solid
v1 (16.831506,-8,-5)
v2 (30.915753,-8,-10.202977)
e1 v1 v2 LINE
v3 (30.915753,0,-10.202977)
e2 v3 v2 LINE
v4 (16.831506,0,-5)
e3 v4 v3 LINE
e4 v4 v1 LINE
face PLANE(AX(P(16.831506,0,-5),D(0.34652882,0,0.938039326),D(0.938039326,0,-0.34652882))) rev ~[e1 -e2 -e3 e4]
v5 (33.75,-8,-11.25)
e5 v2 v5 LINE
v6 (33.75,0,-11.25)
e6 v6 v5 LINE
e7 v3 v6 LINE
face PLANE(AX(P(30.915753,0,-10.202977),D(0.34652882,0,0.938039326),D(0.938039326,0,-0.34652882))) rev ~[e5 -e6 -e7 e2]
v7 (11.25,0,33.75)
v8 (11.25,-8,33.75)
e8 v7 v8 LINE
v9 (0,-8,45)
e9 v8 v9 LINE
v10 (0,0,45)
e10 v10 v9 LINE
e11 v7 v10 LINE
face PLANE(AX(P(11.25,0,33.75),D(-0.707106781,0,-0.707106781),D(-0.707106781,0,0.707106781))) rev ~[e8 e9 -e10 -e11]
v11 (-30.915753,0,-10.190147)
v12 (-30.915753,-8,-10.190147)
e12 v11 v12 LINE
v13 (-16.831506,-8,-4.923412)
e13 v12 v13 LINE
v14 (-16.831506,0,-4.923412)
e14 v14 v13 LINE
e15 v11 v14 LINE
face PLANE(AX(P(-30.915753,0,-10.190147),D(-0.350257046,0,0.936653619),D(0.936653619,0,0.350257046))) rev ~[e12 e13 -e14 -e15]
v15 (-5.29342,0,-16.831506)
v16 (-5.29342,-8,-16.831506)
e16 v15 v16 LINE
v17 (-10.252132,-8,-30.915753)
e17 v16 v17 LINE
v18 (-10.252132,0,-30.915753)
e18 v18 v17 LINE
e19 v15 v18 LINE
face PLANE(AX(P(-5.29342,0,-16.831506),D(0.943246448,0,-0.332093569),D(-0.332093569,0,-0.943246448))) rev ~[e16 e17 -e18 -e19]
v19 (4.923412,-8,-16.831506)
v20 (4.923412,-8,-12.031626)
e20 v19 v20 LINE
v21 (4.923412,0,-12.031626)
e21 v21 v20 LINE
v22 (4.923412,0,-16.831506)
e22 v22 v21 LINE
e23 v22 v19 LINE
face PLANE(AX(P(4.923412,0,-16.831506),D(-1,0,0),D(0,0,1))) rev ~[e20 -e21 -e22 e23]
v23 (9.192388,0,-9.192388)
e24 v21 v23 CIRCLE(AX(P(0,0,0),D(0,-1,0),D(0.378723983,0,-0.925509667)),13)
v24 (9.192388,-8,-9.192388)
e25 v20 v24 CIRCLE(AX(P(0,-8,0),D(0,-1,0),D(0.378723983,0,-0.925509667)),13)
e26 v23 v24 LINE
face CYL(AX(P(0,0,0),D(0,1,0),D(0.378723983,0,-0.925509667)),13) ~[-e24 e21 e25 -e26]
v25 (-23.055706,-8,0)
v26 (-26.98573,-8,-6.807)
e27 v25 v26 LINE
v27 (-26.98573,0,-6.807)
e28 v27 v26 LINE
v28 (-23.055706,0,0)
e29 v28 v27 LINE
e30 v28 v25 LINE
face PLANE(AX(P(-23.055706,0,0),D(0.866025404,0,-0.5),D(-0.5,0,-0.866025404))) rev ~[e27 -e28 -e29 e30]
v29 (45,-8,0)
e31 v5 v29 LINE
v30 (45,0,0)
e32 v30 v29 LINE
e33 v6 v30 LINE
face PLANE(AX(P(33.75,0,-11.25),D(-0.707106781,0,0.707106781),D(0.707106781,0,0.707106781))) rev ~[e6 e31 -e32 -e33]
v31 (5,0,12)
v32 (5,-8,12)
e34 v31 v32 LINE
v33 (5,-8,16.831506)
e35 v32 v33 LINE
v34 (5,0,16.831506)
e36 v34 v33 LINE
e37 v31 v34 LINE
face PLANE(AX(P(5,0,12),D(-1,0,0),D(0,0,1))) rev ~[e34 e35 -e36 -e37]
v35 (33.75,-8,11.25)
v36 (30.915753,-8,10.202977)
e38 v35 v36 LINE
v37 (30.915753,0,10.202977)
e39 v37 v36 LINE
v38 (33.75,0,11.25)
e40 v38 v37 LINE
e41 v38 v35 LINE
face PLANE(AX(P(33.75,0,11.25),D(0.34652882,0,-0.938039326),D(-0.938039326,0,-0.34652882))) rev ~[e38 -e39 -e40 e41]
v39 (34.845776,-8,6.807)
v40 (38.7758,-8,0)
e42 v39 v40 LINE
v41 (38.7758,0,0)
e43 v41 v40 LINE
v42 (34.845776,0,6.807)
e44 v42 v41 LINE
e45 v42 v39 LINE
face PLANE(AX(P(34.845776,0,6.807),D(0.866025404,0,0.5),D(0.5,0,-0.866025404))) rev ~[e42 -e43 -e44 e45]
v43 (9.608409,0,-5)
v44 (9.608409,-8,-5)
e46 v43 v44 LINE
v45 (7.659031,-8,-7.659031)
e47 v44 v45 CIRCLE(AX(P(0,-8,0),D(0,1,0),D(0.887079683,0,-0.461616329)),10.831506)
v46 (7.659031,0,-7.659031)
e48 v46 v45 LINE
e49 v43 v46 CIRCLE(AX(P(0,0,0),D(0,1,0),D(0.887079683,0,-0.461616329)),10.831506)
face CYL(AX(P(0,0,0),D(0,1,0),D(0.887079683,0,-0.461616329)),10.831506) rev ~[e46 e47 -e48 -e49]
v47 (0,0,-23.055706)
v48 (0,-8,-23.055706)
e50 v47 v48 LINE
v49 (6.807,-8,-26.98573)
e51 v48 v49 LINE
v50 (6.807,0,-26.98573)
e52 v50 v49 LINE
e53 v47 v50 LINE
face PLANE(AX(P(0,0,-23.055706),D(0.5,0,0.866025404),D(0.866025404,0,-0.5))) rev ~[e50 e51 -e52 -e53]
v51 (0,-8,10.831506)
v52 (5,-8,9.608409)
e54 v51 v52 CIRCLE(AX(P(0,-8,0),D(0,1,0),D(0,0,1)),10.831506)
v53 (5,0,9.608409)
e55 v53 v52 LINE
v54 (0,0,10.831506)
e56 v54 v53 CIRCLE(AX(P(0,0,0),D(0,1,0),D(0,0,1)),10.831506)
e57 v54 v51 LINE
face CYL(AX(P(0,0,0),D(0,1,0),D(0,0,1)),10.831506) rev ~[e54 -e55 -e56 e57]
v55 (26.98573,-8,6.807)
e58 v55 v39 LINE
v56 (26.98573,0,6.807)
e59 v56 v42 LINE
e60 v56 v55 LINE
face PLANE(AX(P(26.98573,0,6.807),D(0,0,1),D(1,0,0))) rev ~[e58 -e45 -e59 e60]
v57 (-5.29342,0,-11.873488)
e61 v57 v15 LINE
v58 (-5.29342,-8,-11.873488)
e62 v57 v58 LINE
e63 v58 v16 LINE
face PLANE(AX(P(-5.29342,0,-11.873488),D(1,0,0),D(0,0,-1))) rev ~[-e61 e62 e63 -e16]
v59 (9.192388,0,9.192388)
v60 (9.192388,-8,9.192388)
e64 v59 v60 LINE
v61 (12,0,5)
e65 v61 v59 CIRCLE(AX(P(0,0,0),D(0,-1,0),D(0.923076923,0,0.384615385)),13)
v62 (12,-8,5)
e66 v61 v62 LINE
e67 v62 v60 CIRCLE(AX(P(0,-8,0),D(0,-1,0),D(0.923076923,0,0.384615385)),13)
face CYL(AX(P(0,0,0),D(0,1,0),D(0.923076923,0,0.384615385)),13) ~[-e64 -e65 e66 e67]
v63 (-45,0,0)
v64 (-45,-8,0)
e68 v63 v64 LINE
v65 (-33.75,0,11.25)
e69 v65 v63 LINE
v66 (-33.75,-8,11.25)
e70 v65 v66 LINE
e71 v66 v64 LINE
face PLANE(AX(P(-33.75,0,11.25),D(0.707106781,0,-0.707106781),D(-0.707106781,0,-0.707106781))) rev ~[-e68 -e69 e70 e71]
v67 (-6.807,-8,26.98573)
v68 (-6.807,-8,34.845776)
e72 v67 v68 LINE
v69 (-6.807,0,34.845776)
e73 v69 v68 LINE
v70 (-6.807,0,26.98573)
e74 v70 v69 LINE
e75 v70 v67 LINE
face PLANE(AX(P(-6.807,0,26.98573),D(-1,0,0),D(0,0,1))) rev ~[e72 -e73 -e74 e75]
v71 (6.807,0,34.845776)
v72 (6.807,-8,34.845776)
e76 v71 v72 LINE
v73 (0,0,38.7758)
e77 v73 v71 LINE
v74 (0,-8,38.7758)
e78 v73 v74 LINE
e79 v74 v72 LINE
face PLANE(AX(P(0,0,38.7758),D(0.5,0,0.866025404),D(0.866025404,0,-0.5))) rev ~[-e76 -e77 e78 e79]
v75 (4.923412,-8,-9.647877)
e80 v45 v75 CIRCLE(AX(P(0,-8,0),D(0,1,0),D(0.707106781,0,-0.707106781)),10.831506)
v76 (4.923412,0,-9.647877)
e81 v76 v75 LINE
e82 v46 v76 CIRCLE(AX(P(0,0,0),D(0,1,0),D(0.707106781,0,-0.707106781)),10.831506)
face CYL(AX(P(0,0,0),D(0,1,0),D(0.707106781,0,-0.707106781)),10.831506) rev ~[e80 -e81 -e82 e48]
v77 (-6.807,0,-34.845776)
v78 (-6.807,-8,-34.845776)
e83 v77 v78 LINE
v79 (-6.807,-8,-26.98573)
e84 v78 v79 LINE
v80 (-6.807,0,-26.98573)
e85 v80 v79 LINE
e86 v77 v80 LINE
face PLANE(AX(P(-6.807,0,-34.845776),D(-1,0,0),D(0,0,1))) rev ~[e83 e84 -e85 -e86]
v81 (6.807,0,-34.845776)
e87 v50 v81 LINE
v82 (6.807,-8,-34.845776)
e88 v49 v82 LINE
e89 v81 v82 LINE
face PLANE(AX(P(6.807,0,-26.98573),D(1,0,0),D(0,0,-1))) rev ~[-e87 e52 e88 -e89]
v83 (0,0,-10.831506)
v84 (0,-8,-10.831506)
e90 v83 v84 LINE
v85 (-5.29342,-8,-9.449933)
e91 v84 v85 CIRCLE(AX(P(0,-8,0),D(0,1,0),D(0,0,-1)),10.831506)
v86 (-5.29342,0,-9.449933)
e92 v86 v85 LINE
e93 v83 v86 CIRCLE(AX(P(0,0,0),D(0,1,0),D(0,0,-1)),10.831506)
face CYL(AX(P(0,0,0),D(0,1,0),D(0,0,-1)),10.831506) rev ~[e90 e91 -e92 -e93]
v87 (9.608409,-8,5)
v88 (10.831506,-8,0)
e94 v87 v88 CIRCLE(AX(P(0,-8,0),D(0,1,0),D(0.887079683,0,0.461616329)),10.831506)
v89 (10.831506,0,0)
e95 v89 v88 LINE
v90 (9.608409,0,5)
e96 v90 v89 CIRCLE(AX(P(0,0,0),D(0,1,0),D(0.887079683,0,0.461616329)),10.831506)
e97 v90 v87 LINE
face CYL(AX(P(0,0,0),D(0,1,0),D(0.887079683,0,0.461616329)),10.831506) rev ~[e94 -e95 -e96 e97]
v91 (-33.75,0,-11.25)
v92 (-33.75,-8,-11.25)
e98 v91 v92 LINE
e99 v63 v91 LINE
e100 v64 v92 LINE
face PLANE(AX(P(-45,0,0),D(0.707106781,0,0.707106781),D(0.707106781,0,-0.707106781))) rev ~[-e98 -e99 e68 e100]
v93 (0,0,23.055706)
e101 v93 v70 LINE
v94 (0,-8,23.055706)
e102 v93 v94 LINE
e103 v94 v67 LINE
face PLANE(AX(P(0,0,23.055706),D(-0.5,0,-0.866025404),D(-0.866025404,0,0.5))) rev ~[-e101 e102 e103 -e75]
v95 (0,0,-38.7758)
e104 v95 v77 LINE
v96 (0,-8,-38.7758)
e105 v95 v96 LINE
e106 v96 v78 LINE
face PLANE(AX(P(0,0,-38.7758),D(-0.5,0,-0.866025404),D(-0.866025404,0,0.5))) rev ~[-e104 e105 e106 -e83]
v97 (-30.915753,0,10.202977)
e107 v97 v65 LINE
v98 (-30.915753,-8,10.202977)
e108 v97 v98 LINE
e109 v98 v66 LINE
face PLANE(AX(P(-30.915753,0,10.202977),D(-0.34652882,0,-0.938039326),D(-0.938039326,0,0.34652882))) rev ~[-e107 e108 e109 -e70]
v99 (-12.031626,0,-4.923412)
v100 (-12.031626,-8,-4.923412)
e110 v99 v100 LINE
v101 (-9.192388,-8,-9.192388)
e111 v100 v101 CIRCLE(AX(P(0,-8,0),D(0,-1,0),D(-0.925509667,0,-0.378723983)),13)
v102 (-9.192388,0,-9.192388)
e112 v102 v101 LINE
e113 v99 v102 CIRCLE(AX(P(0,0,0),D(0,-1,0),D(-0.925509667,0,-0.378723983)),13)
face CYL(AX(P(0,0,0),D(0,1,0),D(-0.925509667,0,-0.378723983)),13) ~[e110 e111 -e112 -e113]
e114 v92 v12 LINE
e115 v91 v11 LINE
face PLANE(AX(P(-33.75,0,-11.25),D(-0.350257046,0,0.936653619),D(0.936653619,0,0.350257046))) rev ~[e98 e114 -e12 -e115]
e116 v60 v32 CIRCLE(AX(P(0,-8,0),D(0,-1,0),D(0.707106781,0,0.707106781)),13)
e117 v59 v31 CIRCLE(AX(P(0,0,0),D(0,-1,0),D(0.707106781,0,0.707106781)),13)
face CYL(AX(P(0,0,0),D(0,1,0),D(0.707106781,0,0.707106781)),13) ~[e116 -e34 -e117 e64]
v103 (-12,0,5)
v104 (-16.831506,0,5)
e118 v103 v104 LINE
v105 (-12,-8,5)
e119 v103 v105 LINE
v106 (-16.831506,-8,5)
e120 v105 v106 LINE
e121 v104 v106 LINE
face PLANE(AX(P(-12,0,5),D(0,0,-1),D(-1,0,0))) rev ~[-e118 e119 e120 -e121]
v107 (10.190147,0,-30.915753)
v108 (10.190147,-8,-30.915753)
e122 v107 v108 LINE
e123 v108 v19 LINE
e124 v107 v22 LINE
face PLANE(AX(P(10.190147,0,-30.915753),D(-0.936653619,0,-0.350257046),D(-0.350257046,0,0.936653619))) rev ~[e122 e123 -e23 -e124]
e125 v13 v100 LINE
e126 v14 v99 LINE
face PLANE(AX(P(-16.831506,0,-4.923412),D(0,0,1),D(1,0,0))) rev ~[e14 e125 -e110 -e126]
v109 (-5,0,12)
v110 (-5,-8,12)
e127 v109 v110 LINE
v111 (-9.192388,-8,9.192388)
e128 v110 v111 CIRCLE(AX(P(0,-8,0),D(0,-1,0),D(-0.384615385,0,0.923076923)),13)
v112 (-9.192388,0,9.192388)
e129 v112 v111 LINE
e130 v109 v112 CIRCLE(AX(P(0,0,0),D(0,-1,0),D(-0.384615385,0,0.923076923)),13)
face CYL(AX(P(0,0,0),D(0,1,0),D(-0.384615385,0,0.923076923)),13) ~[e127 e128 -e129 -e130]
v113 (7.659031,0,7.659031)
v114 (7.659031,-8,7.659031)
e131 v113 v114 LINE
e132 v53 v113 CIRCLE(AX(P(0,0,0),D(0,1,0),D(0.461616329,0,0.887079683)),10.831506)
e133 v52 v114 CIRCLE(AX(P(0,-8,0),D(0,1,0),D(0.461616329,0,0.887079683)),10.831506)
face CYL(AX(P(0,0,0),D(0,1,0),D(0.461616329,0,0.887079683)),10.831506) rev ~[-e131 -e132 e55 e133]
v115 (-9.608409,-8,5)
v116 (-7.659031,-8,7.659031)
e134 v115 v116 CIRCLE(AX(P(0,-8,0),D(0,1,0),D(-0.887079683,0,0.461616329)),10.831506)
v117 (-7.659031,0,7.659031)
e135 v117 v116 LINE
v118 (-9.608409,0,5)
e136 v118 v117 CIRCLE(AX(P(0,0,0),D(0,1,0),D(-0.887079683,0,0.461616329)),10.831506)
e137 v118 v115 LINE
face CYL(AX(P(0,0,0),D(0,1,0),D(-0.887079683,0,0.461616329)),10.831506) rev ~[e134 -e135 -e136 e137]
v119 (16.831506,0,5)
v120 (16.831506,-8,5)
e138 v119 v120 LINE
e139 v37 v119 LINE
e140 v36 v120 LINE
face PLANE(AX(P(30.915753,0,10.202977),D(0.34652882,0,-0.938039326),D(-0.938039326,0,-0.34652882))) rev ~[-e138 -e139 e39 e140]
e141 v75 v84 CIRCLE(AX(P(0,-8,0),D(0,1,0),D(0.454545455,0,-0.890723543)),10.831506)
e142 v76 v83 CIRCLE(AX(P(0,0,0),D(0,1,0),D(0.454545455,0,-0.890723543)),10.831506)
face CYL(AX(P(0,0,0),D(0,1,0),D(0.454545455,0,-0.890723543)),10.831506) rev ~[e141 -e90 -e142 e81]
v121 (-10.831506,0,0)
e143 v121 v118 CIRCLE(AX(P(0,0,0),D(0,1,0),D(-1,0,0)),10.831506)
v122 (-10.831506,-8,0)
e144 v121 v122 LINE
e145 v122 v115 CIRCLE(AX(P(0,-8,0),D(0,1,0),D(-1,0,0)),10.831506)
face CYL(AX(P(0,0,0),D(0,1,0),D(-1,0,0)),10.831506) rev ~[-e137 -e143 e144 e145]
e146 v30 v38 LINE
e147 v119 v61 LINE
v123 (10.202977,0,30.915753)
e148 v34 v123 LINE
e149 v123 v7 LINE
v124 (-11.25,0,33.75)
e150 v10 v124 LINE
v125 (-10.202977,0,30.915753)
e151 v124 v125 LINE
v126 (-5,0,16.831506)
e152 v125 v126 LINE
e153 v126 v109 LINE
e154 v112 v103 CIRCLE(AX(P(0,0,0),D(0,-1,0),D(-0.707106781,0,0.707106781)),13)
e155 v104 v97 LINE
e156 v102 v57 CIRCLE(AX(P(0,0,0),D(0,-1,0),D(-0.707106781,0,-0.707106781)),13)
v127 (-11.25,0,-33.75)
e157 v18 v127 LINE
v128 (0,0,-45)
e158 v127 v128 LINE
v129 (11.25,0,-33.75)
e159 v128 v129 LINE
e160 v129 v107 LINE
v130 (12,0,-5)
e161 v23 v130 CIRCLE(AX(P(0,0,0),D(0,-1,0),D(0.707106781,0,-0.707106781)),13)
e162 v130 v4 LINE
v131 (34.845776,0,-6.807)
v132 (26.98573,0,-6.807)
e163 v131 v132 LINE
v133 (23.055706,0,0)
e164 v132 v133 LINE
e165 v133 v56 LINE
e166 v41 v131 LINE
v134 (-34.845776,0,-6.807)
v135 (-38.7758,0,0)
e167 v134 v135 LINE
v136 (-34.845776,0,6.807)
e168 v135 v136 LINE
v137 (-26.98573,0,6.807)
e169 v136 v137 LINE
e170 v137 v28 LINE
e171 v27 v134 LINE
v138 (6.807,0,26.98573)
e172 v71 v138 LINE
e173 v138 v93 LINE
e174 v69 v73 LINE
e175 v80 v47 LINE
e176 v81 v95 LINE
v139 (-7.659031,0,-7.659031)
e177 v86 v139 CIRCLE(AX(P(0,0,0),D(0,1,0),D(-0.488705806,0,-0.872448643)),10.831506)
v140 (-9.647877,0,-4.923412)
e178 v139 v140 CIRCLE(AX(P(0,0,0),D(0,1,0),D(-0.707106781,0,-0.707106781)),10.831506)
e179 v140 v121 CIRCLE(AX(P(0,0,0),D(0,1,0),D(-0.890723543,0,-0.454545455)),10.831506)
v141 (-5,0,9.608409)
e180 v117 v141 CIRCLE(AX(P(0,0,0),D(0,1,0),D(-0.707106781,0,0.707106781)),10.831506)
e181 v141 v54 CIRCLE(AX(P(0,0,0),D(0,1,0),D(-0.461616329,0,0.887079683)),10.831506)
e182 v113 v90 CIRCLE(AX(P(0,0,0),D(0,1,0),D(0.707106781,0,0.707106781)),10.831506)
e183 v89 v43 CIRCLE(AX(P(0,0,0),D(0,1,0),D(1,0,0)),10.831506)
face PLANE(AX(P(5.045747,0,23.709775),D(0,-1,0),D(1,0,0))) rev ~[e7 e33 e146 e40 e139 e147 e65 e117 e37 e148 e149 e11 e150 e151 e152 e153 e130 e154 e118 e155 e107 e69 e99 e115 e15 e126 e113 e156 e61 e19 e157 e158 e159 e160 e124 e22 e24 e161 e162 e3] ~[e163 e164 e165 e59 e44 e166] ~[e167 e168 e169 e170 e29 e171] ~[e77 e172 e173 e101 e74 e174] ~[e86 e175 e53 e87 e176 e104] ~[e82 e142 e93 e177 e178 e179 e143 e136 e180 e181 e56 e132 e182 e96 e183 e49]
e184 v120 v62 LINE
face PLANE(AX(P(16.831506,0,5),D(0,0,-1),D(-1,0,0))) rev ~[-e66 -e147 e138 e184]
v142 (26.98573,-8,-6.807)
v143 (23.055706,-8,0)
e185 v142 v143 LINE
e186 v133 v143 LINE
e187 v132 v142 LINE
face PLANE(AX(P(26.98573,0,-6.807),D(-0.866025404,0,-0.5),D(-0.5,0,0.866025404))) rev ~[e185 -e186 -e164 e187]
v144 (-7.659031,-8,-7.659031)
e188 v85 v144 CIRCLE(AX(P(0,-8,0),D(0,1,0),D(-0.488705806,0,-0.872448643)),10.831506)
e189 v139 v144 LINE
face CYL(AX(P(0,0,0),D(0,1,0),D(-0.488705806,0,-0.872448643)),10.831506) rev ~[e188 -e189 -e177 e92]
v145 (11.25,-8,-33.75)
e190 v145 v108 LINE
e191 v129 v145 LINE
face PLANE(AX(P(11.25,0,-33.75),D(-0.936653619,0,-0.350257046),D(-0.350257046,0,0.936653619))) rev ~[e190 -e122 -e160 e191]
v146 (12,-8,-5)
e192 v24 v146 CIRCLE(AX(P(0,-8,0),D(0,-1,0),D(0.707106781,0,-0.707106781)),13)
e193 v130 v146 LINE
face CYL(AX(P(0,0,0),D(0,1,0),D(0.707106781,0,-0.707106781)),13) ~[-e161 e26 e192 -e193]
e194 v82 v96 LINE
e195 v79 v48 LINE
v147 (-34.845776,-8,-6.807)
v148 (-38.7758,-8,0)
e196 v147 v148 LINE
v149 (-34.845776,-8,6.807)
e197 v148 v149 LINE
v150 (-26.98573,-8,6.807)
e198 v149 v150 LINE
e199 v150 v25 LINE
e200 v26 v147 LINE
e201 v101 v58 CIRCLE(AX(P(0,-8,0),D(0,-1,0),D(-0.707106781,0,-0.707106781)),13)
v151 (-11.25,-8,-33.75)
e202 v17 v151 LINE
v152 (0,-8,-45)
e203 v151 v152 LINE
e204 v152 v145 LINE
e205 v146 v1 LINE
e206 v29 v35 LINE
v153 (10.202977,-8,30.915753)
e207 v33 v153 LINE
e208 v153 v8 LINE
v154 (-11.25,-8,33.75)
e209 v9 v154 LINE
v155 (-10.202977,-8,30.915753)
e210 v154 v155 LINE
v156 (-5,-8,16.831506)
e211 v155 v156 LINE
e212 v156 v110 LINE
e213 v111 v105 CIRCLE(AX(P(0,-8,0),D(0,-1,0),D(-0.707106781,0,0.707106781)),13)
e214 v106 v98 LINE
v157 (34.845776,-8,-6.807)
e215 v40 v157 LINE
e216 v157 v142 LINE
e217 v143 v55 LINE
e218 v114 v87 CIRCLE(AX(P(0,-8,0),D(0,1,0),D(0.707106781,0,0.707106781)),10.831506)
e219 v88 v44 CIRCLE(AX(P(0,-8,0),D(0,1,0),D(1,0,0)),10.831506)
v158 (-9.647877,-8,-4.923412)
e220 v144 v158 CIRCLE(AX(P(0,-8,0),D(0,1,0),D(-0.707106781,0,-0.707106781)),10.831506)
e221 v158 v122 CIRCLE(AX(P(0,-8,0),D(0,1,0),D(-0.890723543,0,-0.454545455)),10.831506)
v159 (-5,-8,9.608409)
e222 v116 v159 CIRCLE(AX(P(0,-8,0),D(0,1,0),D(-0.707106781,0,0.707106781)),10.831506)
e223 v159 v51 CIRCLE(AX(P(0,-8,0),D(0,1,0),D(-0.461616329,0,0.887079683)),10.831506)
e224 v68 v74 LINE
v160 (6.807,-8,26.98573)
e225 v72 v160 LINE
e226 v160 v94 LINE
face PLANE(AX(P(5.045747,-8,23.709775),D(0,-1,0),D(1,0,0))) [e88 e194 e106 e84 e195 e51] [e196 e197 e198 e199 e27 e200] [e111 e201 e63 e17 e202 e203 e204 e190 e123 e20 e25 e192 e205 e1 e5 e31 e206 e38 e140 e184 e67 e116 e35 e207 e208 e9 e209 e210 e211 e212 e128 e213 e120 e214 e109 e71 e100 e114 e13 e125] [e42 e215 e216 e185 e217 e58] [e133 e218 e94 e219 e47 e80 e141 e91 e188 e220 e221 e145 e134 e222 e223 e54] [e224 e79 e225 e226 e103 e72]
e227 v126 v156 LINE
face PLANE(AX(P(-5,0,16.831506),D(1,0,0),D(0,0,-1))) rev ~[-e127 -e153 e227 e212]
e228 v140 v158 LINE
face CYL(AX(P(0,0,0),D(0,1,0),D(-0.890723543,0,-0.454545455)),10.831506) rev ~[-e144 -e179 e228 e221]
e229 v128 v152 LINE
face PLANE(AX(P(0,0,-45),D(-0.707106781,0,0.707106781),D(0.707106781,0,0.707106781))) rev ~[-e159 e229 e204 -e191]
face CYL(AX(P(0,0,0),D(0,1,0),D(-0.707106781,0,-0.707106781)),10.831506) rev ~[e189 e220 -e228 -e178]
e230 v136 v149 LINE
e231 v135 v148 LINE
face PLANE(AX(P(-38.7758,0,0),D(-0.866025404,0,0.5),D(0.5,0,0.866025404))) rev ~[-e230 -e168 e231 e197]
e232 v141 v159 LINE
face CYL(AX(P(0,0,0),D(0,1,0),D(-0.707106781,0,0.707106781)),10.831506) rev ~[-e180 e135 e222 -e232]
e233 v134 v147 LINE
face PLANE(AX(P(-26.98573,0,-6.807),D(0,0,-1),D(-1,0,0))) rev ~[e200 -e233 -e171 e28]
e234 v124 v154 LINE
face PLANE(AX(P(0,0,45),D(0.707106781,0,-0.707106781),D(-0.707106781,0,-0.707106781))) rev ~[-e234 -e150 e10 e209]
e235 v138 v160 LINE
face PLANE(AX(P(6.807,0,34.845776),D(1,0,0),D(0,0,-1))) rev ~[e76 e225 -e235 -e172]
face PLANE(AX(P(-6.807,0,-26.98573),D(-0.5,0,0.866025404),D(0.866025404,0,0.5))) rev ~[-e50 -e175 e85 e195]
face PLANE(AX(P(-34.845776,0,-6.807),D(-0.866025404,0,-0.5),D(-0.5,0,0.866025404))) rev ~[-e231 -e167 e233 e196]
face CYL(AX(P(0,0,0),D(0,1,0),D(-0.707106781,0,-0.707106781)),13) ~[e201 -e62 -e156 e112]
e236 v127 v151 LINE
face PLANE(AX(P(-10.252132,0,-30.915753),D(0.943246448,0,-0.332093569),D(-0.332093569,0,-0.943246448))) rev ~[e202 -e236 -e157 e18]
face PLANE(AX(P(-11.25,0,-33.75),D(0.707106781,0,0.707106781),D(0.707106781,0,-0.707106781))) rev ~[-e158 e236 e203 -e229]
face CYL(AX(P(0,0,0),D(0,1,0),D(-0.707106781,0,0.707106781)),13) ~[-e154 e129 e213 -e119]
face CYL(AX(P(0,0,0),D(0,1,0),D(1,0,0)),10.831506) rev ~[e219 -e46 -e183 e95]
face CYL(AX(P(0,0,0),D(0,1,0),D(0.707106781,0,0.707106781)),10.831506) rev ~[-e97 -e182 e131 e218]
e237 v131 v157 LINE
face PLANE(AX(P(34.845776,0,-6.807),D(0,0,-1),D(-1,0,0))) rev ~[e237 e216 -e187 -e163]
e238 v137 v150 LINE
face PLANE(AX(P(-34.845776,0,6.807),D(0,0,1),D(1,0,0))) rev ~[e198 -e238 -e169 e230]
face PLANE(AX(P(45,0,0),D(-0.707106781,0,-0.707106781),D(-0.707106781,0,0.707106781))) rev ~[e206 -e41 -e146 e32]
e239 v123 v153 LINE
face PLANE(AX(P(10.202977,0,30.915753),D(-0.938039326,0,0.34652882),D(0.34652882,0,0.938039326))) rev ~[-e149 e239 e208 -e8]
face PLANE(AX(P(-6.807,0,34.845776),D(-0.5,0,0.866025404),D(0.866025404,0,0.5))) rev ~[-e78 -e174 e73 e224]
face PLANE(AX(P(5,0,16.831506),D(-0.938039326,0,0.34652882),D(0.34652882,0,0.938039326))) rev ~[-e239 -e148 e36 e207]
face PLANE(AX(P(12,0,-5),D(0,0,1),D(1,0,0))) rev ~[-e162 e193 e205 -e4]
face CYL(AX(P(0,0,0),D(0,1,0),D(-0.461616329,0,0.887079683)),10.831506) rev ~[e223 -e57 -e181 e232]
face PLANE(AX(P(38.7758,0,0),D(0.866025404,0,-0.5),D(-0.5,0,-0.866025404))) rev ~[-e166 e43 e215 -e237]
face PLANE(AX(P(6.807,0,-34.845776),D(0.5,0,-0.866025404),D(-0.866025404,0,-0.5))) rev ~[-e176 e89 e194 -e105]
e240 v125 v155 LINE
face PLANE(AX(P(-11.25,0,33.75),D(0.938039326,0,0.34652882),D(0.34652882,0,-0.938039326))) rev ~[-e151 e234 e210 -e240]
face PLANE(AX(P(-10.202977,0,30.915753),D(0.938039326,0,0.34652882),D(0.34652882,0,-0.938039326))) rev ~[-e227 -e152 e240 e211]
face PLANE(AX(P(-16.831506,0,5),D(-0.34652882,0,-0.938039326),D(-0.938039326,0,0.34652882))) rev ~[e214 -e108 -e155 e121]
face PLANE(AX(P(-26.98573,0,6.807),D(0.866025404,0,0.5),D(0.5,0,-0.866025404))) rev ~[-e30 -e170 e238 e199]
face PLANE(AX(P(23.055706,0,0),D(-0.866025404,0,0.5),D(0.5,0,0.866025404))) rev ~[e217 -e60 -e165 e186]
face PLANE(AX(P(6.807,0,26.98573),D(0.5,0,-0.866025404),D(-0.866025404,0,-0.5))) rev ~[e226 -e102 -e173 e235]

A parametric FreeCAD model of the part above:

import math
import FreeCAD as App
import Part
import Sketcher

V = App.Vector
Q = App.Units.Quantity

doc = App.newDocument("Part")
params = doc.addObject("Spreadsheet::Sheet", "Params")
for row, (alias, value) in enumerate([
    ("sketch1_radius", "13 mm"),
    ("pad1_length", "8 mm"),
], start=1):
    params.set(f"A{row}", alias)
    params.set(f"B{row}", "=" + value)
    params.setAlias(f"B{row}", alias)

body = doc.addObject("PartDesign::Body", "Body")

# Sketch on XZ plane
sketch1 = doc.addObject("Sketcher::SketchObject", "Sketch")
body.addObject(sketch1)
sketch1.AttachmentSupport = (doc.XZ_Plane, [""])
sketch1.MapMode = "FlatFace"
sketch1.addGeometry([
    Part.LineSegment(V(5, 16.8, 0), V(10.2, 30.9, 0)),  # 0
    Part.LineSegment(V(10.2, 30.9, 0), V(11.2, 33.8, 0)),  # 1
    Part.LineSegment(V(11.2, 33.8, 0), V(0, 45, 0)),  # 2
    Part.LineSegment(V(0, 45, 0), V(-11.2, 33.8, 0)),  # 3
    Part.LineSegment(V(-11.2, 33.8, 0), V(-10.2, 30.9, 0)),  # 4
    Part.LineSegment(V(-10.2, 30.9, 0), V(-5, 16.8, 0)),  # 5
    Part.LineSegment(V(-5, 16.8, 0), V(-5, 12, 0)),  # 6
    Part.ArcOfCircle(Part.Circle(V(0, 0, 0), V(0, 0, 1), 13), math.radians(113), math.radians(135)),  # 7
    Part.ArcOfCircle(Part.Circle(V(0, 0, 0), V(0, 0, 1), 13), math.radians(135), math.radians(157)),  # 8
    Part.LineSegment(V(-12, 5, 0), V(-16.8, 5, 0)),  # 9
    Part.LineSegment(V(-16.8, 5, 0), V(-30.9, 10.2, 0)),  # 10
    Part.LineSegment(V(-30.9, 10.2, 0), V(-33.8, 11.2, 0)),  # 11
    Part.LineSegment(V(-33.8, 11.2, 0), V(-45, 0, 0)),  # 12
    Part.LineSegment(V(-45, 0, 0), V(-33.8, -11.2, 0)),  # 13
    Part.LineSegment(V(-33.8, -11.2, 0), V(-30.9, -10.2, 0)),  # 14
    Part.LineSegment(V(-30.9, -10.2, 0), V(-16.8, -4.9, 0)),  # 15
    Part.LineSegment(V(-16.8, -4.9, 0), V(-12, -4.9, 0)),  # 16
    Part.ArcOfCircle(Part.Circle(V(0, 0, 0), V(0, 0, 1), 13), math.radians(-158), math.radians(-135)),  # 17
    Part.ArcOfCircle(Part.Circle(V(0, 0, 0), V(0, 0, 1), 13), math.radians(-135), math.radians(-114)),  # 18
    Part.LineSegment(V(-5.3, -11.9, 0), V(-5.3, -16.8, 0)),  # 19
    Part.LineSegment(V(-5.3, -16.8, 0), V(-10.3, -30.9, 0)),  # 20
    Part.LineSegment(V(-10.3, -30.9, 0), V(-11.2, -33.8, 0)),  # 21
    Part.LineSegment(V(-11.2, -33.8, 0), V(0, -45, 0)),  # 22
    Part.LineSegment(V(0, -45, 0), V(11.2, -33.8, 0)),  # 23
    Part.LineSegment(V(11.2, -33.8, 0), V(10.2, -30.9, 0)),  # 24
    Part.LineSegment(V(10.2, -30.9, 0), V(4.9, -16.8, 0)),  # 25
    Part.LineSegment(V(4.9, -16.8, 0), V(4.9, -12, 0)),  # 26
    Part.ArcOfCircle(Part.Circle(V(0, 0, 0), V(0, 0, 1), 13), math.radians(-68), math.radians(-45)),  # 27
    Part.ArcOfCircle(Part.Circle(V(0, 0, 0), V(0, 0, 1), 13), math.radians(-45), math.radians(-23)),  # 28
    Part.LineSegment(V(12, -5, 0), V(16.8, -5, 0)),  # 29
    Part.LineSegment(V(16.8, -5, 0), V(30.9, -10.2, 0)),  # 30
    Part.LineSegment(V(30.9, -10.2, 0), V(33.8, -11.2, 0)),  # 31
    Part.LineSegment(V(33.8, -11.2, 0), V(45, 0, 0)),  # 32
    Part.LineSegment(V(45, 0, 0), V(33.8, 11.2, 0)),  # 33
    Part.LineSegment(V(33.8, 11.2, 0), V(30.9, 10.2, 0)),  # 34
    Part.LineSegment(V(30.9, 10.2, 0), V(16.8, 5, 0)),  # 35
    Part.LineSegment(V(16.8, 5, 0), V(12, 5, 0)),  # 36
    Part.ArcOfCircle(Part.Circle(V(0, 0, 0), V(0, 0, 1), 13), math.radians(23), math.radians(45)),  # 37
    Part.ArcOfCircle(Part.Circle(V(0, 0, 0), V(0, 0, 1), 13), math.radians(45), math.radians(67)),  # 38
    Part.LineSegment(V(5, 12, 0), V(5, 16.8, 0)),  # 39
    Part.ArcOfCircle(Part.Circle(V(0, 0, 0), V(0, 0, 1), 10.8), math.radians(-62.96), math.radians(-45)),  # 40
    Part.ArcOfCircle(Part.Circle(V(0, 0, 0), V(0, 0, 1), 10.8), math.radians(-90), math.radians(-63)),  # 41
    Part.ArcOfCircle(Part.Circle(V(0, 0, 0), V(0, 0, 1), 10.8), math.radians(-119), math.radians(-90)),  # 42
    Part.ArcOfCircle(Part.Circle(V(0, 0, 0), V(0, 0, 1), 10.8), math.radians(-135), math.radians(-119.26)),  # 43
    Part.ArcOfCircle(Part.Circle(V(0, 0, 0), V(0, 0, 1), 10.8), math.radians(-152.96), math.radians(-135)),  # 44
    Part.ArcOfCircle(Part.Circle(V(0, 0, 0), V(0, 0, 1), 10.8), math.radians(180), math.radians(207)),  # 45
    Part.ArcOfCircle(Part.Circle(V(0, 0, 0), V(0, 0, 1), 10.8), math.radians(153), math.radians(180)),  # 46
    Part.ArcOfCircle(Part.Circle(V(0, 0, 0), V(0, 0, 1), 10.8), math.radians(135), math.radians(152.51)),  # 47
    Part.ArcOfCircle(Part.Circle(V(0, 0, 0), V(0, 0, 1), 10.8), math.radians(117.49), math.radians(135)),  # 48
    Part.ArcOfCircle(Part.Circle(V(0, 0, 0), V(0, 0, 1), 10.8), math.radians(90), math.radians(117)),  # 49
    Part.ArcOfCircle(Part.Circle(V(0, 0, 0), V(0, 0, 1), 10.8), math.radians(63), math.radians(90)),  # 50
    Part.ArcOfCircle(Part.Circle(V(0, 0, 0), V(0, 0, 1), 10.8), math.radians(45), math.radians(62.51)),  # 51
    Part.ArcOfCircle(Part.Circle(V(0, 0, 0), V(0, 0, 1), 10.8), math.radians(27.49), math.radians(45)),  # 52
    Part.ArcOfCircle(Part.Circle(V(0, 0, 0), V(0, 0, 1), 10.8), math.radians(0), math.radians(27)),  # 53
    Part.ArcOfCircle(Part.Circle(V(0, 0, 0), V(0, 0, 1), 10.8), math.radians(-27), math.radians(0)),  # 54
    Part.ArcOfCircle(Part.Circle(V(0, 0, 0), V(0, 0, 1), 10.8), math.radians(-45), math.radians(-27.49)),  # 55
    Part.LineSegment(V(0, 38.8, 0), V(6.8, 34.8, 0)),  # 56
    Part.LineSegment(V(6.8, 34.8, 0), V(6.8, 27, 0)),  # 57
    Part.LineSegment(V(6.8, 27, 0), V(0, 23.1, 0)),  # 58
    Part.LineSegment(V(0, 23.1, 0), V(-6.8, 27, 0)),  # 59
    Part.LineSegment(V(-6.8, 27, 0), V(-6.8, 34.8, 0)),  # 60
    Part.LineSegment(V(-6.8, 34.8, 0), V(0, 38.8, 0)),  # 61
    Part.LineSegment(V(-27, -6.8, 0), V(-34.8, -6.8, 0)),  # 62
    Part.LineSegment(V(-34.8, -6.8, 0), V(-38.8, 0, 0)),  # 63
    Part.LineSegment(V(-38.8, 0, 0), V(-34.8, 6.8, 0)),  # 64
    Part.LineSegment(V(-34.8, 6.8, 0), V(-27, 6.8, 0)),  # 65
    Part.LineSegment(V(-27, 6.8, 0), V(-23.1, 0, 0)),  # 66
    Part.LineSegment(V(-23.1, 0, 0), V(-27, -6.8, 0)),  # 67
    Part.LineSegment(V(-6.8, -27, 0), V(0, -23.1, 0)),  # 68
    Part.LineSegment(V(0, -23.1, 0), V(6.8, -27, 0)),  # 69
    Part.LineSegment(V(6.8, -27, 0), V(6.8, -34.8, 0)),  # 70
    Part.LineSegment(V(6.8, -34.8, 0), V(0, -38.8, 0)),  # 71
    Part.LineSegment(V(0, -38.8, 0), V(-6.8, -34.8, 0)),  # 72
    Part.LineSegment(V(-6.8, -34.8, 0), V(-6.8, -27, 0)),  # 73
    Part.LineSegment(V(34.8, 6.8, 0), V(38.8, 0, 0)),  # 74
    Part.LineSegment(V(38.8, 0, 0), V(34.8, -6.8, 0)),  # 75
    Part.LineSegment(V(34.8, -6.8, 0), V(27, -6.8, 0)),  # 76
    Part.LineSegment(V(27, -6.8, 0), V(23.1, 0, 0)),  # 77
    Part.LineSegment(V(23.1, 0, 0), V(27, 6.8, 0)),  # 78
    Part.LineSegment(V(27, 6.8, 0), V(34.8, 6.8, 0)),  # 79
], False)
sketch1.addConstraint([
    Sketcher.Constraint("Coincident", 0, 2, 1, 1),
    Sketcher.Constraint("Coincident", 1, 2, 2, 1),
    Sketcher.Constraint("Coincident", 2, 2, 3, 1),
    Sketcher.Constraint("Coincident", 3, 2, 4, 1),
    Sketcher.Constraint("Coincident", 4, 2, 5, 1),
    Sketcher.Constraint("Coincident", 5, 2, 6, 1),
    Sketcher.Constraint("Coincident", 6, 2, 7, 1),
    Sketcher.Constraint("Tangent", 7, 2, 8, 1),
    Sketcher.Constraint("Coincident", 8, 2, 9, 1),
    Sketcher.Constraint("Coincident", 9, 2, 10, 1),
    Sketcher.Constraint("Coincident", 10, 2, 11, 1),
    Sketcher.Constraint("Coincident", 11, 2, 12, 1),
    Sketcher.Constraint("Coincident", 12, 2, 13, 1),
    Sketcher.Constraint("Coincident", 13, 2, 14, 1),
    Sketcher.Constraint("Coincident", 14, 2, 15, 1),
    Sketcher.Constraint("Coincident", 15, 2, 16, 1),
    Sketcher.Constraint("Coincident", 16, 2, 17, 1),
    Sketcher.Constraint("Tangent", 17, 2, 18, 1),
    Sketcher.Constraint("Coincident", 18, 2, 19, 1),
    Sketcher.Constraint("Coincident", 19, 2, 20, 1),
    Sketcher.Constraint("Coincident", 20, 2, 21, 1),
    Sketcher.Constraint("Coincident", 21, 2, 22, 1),
    Sketcher.Constraint("Coincident", 22, 2, 23, 1),
    Sketcher.Constraint("Coincident", 23, 2, 24, 1),
    Sketcher.Constraint("Coincident", 24, 2, 25, 1),
    Sketcher.Constraint("Coincident", 25, 2, 26, 1),
    Sketcher.Constraint("Coincident", 26, 2, 27, 1),
    Sketcher.Constraint("Tangent", 27, 2, 28, 1),
    Sketcher.Constraint("Coincident", 28, 2, 29, 1),
    Sketcher.Constraint("Coincident", 29, 2, 30, 1),
    Sketcher.Constraint("Coincident", 30, 2, 31, 1),
    Sketcher.Constraint("Coincident", 31, 2, 32, 1),
    Sketcher.Constraint("Coincident", 32, 2, 33, 1),
    Sketcher.Constraint("Coincident", 33, 2, 34, 1),
    Sketcher.Constraint("Coincident", 34, 2, 35, 1),
    Sketcher.Constraint("Coincident", 35, 2, 36, 1),
    Sketcher.Constraint("Coincident", 36, 2, 37, 1),
    Sketcher.Constraint("Tangent", 37, 2, 38, 1),
    Sketcher.Constraint("Coincident", 38, 2, 39, 1),
    Sketcher.Constraint("Coincident", 39, 2, 0, 1),
    Sketcher.Constraint("Tangent", 40, 1, 41, 2),
    Sketcher.Constraint("Tangent", 41, 1, 42, 2),
    Sketcher.Constraint("Tangent", 42, 1, 43, 2),
    Sketcher.Constraint("Tangent", 43, 1, 44, 2),
    Sketcher.Constraint("Tangent", 44, 1, 45, 2),
    Sketcher.Constraint("Tangent", 45, 1, 46, 2),
    Sketcher.Constraint("Tangent", 46, 1, 47, 2),
    Sketcher.Constraint("Tangent", 47, 1, 48, 2),
    Sketcher.Constraint("Tangent", 48, 1, 49, 2),
    Sketcher.Constraint("Tangent", 49, 1, 50, 2),
    Sketcher.Constraint("Tangent", 50, 1, 51, 2),
    Sketcher.Constraint("Tangent", 51, 1, 52, 2),
    Sketcher.Constraint("Tangent", 52, 1, 53, 2),
    Sketcher.Constraint("Tangent", 53, 1, 54, 2),
    Sketcher.Constraint("Tangent", 54, 1, 55, 2),
    Sketcher.Constraint("Tangent", 55, 1, 40, 2),
    Sketcher.Constraint("Coincident", 56, 2, 57, 1),
    Sketcher.Constraint("Coincident", 57, 2, 58, 1),
    Sketcher.Constraint("Coincident", 58, 2, 59, 1),
    Sketcher.Constraint("Coincident", 59, 2, 60, 1),
    Sketcher.Constraint("Coincident", 60, 2, 61, 1),
    Sketcher.Constraint("Coincident", 61, 2, 56, 1),
    Sketcher.Constraint("Coincident", 62, 2, 63, 1),
    Sketcher.Constraint("Coincident", 63, 2, 64, 1),
    Sketcher.Constraint("Coincident", 64, 2, 65, 1),
    Sketcher.Constraint("Coincident", 65, 2, 66, 1),
    Sketcher.Constraint("Coincident", 66, 2, 67, 1),
    Sketcher.Constraint("Coincident", 67, 2, 62, 1),
    Sketcher.Constraint("Coincident", 68, 2, 69, 1),
    Sketcher.Constraint("Coincident", 69, 2, 70, 1),
    Sketcher.Constraint("Coincident", 70, 2, 71, 1),
    Sketcher.Constraint("Coincident", 71, 2, 72, 1),
    Sketcher.Constraint("Coincident", 72, 2, 73, 1),
    Sketcher.Constraint("Coincident", 73, 2, 68, 1),
    Sketcher.Constraint("Coincident", 74, 2, 75, 1),
    Sketcher.Constraint("Coincident", 75, 2, 76, 1),
    Sketcher.Constraint("Coincident", 76, 2, 77, 1),
    Sketcher.Constraint("Coincident", 77, 2, 78, 1),
    Sketcher.Constraint("Coincident", 78, 2, 79, 1),
    Sketcher.Constraint("Coincident", 79, 2, 74, 1),
    Sketcher.Constraint("Vertical", 6),
    Sketcher.Constraint("Horizontal", 9),
    Sketcher.Constraint("Horizontal", 16),
    Sketcher.Constraint("Vertical", 19),
    Sketcher.Constraint("Vertical", 26),
    Sketcher.Constraint("Horizontal", 29),
    Sketcher.Constraint("Horizontal", 36),
    Sketcher.Constraint("Vertical", 39),
    Sketcher.Constraint("Vertical", 57),
    Sketcher.Constraint("Vertical", 60),
    Sketcher.Constraint("Horizontal", 62),
    Sketcher.Constraint("Horizontal", 65),
    Sketcher.Constraint("Vertical", 70),
    Sketcher.Constraint("Vertical", 73),
    Sketcher.Constraint("Horizontal", 76),
    Sketcher.Constraint("Horizontal", 79),
    Sketcher.Constraint("Coincident", 7, 3, -1, 1),
    Sketcher.Constraint("Coincident", 17, 3, -1, 1),
    Sketcher.Constraint("Coincident", 27, 3, -1, 1),
    Sketcher.Constraint("Coincident", 37, 3, -1, 1),
    Sketcher.Constraint("Coincident", 40, 3, -1, 1),
    Sketcher.Constraint("Coincident", 42, 3, -1, 1),
    Sketcher.Constraint("Coincident", 44, 3, -1, 1),
    Sketcher.Constraint("Coincident", 46, 3, -1, 1),
    Sketcher.Constraint("Coincident", 48, 3, -1, 1),
    Sketcher.Constraint("Coincident", 50, 3, -1, 1),
    Sketcher.Constraint("Coincident", 52, 3, -1, 1),
    Sketcher.Constraint("Equal", 7, 8),
    Sketcher.Constraint("Equal", 8, 17),
    Sketcher.Constraint("Equal", 17, 18),
    Sketcher.Constraint("Equal", 18, 27),
    Sketcher.Constraint("Equal", 27, 28),
    Sketcher.Constraint("Equal", 28, 37),
    Sketcher.Constraint("Equal", 37, 38),
    Sketcher.Constraint("Equal", 52, 53),
    Sketcher.Constraint("Symmetric", 1, 2, 21, 2, -1, 1),
    Sketcher.Constraint("Symmetric", 2, 2, 22, 2, -1, 1),
    Sketcher.Constraint("Symmetric", 3, 2, 23, 2, -1, 1),
    Sketcher.Constraint("Symmetric", 9, 2, 29, 2, -1, 1),
    Sketcher.Constraint("Symmetric", 10, 2, 30, 2, -1, 1),
    Sketcher.Constraint("Symmetric", 11, 2, 31, 2, -1, 1),
    Sketcher.Constraint("Symmetric", 12, 2, 32, 2, -1, 1),
    Sketcher.Constraint("Symmetric", 13, 2, 33, 2, -1, 1),
    Sketcher.Constraint("Symmetric", 58, 2, 68, 2, -1, 1),
    Sketcher.Constraint("Symmetric", 59, 2, 69, 2, -1, 1),
    Sketcher.Constraint("Symmetric", 61, 2, 71, 2, -1, 1),
    Sketcher.Constraint("Symmetric", 56, 2, 72, 2, -1, 1),
    Sketcher.Constraint("Symmetric", 63, 2, 74, 2, -1, 1),
    Sketcher.Constraint("Symmetric", 64, 2, 75, 2, -1, 1),
    Sketcher.Constraint("Symmetric", 66, 2, 77, 2, -1, 1),
    Sketcher.Constraint("Symmetric", 67, 2, 78, 2, -1, 1),
    Sketcher.Constraint("Symmetric", 1, 2, 3, 2, -2),
    Sketcher.Constraint("Symmetric", 0, 2, 4, 2, -2),
    Sketcher.Constraint("Symmetric", 13, 2, 31, 2, -2),
    Sketcher.Constraint("Symmetric", 10, 2, 34, 2, -2),
    Sketcher.Constraint("Symmetric", 9, 2, 35, 2, -2),
    Sketcher.Constraint("Symmetric", 5, 2, 39, 2, -2),
    Sketcher.Constraint("Symmetric", 57, 2, 59, 2, -2),
    Sketcher.Constraint("Symmetric", 62, 2, 75, 2, -2),
    Sketcher.Constraint("PointOnObject", 2, 2, -2),
    Sketcher.Constraint("PointOnObject", 12, 2, -1),
    Sketcher.Constraint("PointOnObject", 41, 1, -2),
    Sketcher.Constraint("PointOnObject", 45, 1, -1),
    Sketcher.Constraint("PointOnObject", 49, 1, -2),
    Sketcher.Constraint("PointOnObject", 53, 1, -1),
    Sketcher.Constraint("PointOnObject", 58, 2, -2),
    Sketcher.Constraint("PointOnObject", 61, 2, -2),
    Sketcher.Constraint("PointOnObject", 63, 2, -1),
    Sketcher.Constraint("PointOnObject", 66, 2, -1),
    Sketcher.Constraint("Parallel", 0, 1),
    Sketcher.Constraint("Perpendicular", 2, 3),
    Sketcher.Constraint("Perpendicular", 1, 10),
    Sketcher.Constraint("Parallel", 10, 11),
    Sketcher.Constraint("Parallel", 3, 12),
    Sketcher.Constraint("Parallel", 14, 15),
    Sketcher.Constraint("Parallel", 20, 21),
    Sketcher.Constraint("Perpendicular", 15, 24),
    Sketcher.Constraint("Parallel", 24, 25),
    Sketcher.Constraint("Parallel", 56, 59),
    Sketcher.Constraint("Parallel", 58, 61),
    Sketcher.Constraint("Perpendicular", 61, 63),
    Sketcher.Constraint("Parallel", 63, 66),
    Sketcher.Constraint("Parallel", 64, 67),
    Sketcher.Constraint("Perpendicular", 66, 68),
    Sketcher.Constraint("Parallel", 68, 71),
    Sketcher.Constraint("Perpendicular", 71, 74),
    Sketcher.Constraint("Parallel", 74, 77),
    Sketcher.Constraint("Horizontal", 20, 2, 24, 2),
    Sketcher.Constraint("Horizontal", 19, 2, 25, 2),
    Sketcher.Constraint("Horizontal", 17, 2, 27, 2),
    Sketcher.Constraint("Horizontal", 7, 2, 37, 2),
    Sketcher.Constraint("Horizontal", 16, 2, 44, 1),
    Sketcher.Constraint("Horizontal", 36, 2, 46, 1),
    Sketcher.Constraint("Horizontal", 48, 1, 50, 1),
    Sketcher.Constraint("Horizontal", 47, 1, 51, 1),
    Sketcher.Constraint("Horizontal", 46, 1, 52, 1),
    Sketcher.Constraint("Horizontal", 29, 2, 54, 1),
    Sketcher.Constraint("Horizontal", 43, 1, 55, 1),
    Sketcher.Constraint("Vertical", 10, 2, 14, 2),
    Sketcher.Constraint("Vertical", 9, 2, 15, 2),
    Sketcher.Constraint("Vertical", 7, 2, 17, 2),
    Sketcher.Constraint("Vertical", 26, 2, 40, 1),
    Sketcher.Constraint("Vertical", 19, 2, 42, 1),
    Sketcher.Constraint("Vertical", 43, 1, 47, 1),
    Sketcher.Constraint("Vertical", 6, 2, 48, 1),
    Sketcher.Constraint("Equal", 36, 6),
    Sketcher.Constraint("Equal", 16, 26),
    Sketcher.Constraint("Equal", 79, 57),
    Sketcher.Constraint("Equal", 5, 10),
    Sketcher.Constraint("Equal", 4, 11),
    Sketcher.Constraint("Equal", 3, 12),
    Sketcher.Constraint("Equal", 14, 24),
    Sketcher.Constraint("Equal", 61, 63),
    Sketcher.Constraint("Radius", 7, 13.0),
    Sketcher.Constraint("Angle", 56, Q("-30 deg")),
    Sketcher.Constraint("DistanceY", -1, 1, 2, 2, 45.0),
    Sketcher.Constraint("DistanceX", 5, 2, -1, 1, 5.0),
    Sketcher.Constraint("DistanceX", -1, 1, 1, 2, 11.25),
    Sketcher.Constraint("DistanceX", -1, 1, 56, 2, 6.807),
    Sketcher.Constraint("Radius", 40, 10.831506),
    Sketcher.Constraint("DistanceX", 16, 1, 16, 2, 4.79988),
    Sketcher.Constraint("DistanceY", 19, 2, 19, 1, 4.958018),
    Sketcher.Constraint("DistanceY", -1, 1, 61, 2, 38.7758),
    Sketcher.Constraint("DistanceX", 63, 2, -1, 1, 38.7758),
    Sketcher.Constraint("Distance", 0, 15.014559),
    Sketcher.Constraint("Distance", 1, 3.021459),
    Sketcher.Constraint("DistanceX", 62, 2, 62, 1, 7.860047),
    Sketcher.Constraint("DistanceX", 7, 2, -1, 1, 9.192388),
    Sketcher.Constraint("DistanceX", 43, 1, -1, 1, 7.659031),
])
sketch1.setExpression("Constraints[193]", "Params.sketch1_radius")
pad1 = doc.addObject("PartDesign::Pad", "Pad")
body.addObject(pad1)
pad1.Profile = sketch1
pad1.setExpression("Length", "Params.pad1_length")

doc.recompute()
